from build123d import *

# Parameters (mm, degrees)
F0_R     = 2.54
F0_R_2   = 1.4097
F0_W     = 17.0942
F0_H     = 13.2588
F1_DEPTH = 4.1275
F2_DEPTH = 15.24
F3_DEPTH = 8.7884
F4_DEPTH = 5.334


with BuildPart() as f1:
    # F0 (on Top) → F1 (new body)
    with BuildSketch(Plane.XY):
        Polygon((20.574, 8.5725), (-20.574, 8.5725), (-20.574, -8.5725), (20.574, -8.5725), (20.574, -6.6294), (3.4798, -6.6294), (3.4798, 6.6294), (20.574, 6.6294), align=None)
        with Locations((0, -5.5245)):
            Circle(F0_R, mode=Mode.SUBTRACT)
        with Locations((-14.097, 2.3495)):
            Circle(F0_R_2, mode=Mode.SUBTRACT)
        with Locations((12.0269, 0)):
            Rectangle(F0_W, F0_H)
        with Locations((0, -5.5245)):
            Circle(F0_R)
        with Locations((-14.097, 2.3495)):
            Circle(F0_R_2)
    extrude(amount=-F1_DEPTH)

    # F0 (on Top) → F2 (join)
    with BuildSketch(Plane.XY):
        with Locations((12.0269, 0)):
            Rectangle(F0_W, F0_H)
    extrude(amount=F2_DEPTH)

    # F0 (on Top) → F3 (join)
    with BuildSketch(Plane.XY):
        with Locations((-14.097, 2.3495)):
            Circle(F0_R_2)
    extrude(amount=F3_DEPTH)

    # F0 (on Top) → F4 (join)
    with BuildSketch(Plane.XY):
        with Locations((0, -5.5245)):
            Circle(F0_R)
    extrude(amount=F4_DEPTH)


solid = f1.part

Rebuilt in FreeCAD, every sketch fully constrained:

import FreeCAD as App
import Part
import Sketcher
Q = App.Units.Quantity

doc = App.newDocument("Part")
body = doc.addObject("PartDesign::Body", "Body")

sketch1 = body.newObject("Sketcher::SketchObject", "Sketch")
sketch1.AttachmentSupport = (doc.getObject("XY_Plane"), [""])
sketch1.MapMode = "FlatFace"
sketch1.addGeometry([
    Part.LineSegment(App.Vector(21, 9, 0), App.Vector(-21, 9, 0)),
    Part.LineSegment(App.Vector(-21, 9, 0), App.Vector(-21, -9, 0)),
    Part.LineSegment(App.Vector(-21, -9, 0), App.Vector(21, -9, 0)),
    Part.LineSegment(App.Vector(21, -9, 0), App.Vector(21, 9, 0)),
], False)
sketch1.addConstraint([
    Sketcher.Constraint("Coincident", 0, 2, 1, 1),
    Sketcher.Constraint("Coincident", 1, 2, 2, 1),
    Sketcher.Constraint("Coincident", 2, 2, 3, 1),
    Sketcher.Constraint("Coincident", 3, 2, 0, 1),
    Sketcher.Constraint("Horizontal", 0),
    Sketcher.Constraint("Vertical", 1),
    Sketcher.Constraint("Horizontal", 2),
    Sketcher.Constraint("Vertical", 3),
    Sketcher.Constraint("Symmetric", 0, 2, 2, 2, -1, 1),
    Sketcher.Constraint("DistanceX", 0, 2, 0, 1, Q("1.62 in")),
    Sketcher.Constraint("DistanceY", 1, 2, 1, 1, Q("0.675 in")),
])
pad1 = body.newObject("PartDesign::Pad", "Pad")
pad1.Profile = sketch1
pad1.Length = Q("0.1625 in")
pad1.Reversed = True

sketch2 = body.newObject("Sketcher::SketchObject", "Sketch001")
sketch2.AttachmentSupport = (doc.getObject("XY_Plane"), [""])
sketch2.MapMode = "FlatFace"
sketch2.addGeometry([
    Part.LineSegment(App.Vector(3, 7, 0), App.Vector(3, -7, 0)),
    Part.LineSegment(App.Vector(3, -7, 0), App.Vector(21, -7, 0)),
    Part.LineSegment(App.Vector(21, -7, 0), App.Vector(21, 7, 0)),
    Part.LineSegment(App.Vector(21, 7, 0), App.Vector(3, 7, 0)),
], False)
sketch2.addConstraint([
    Sketcher.Constraint("Coincident", 0, 2, 1, 1),
    Sketcher.Constraint("Coincident", 1, 2, 2, 1),
    Sketcher.Constraint("Coincident", 2, 2, 3, 1),
    Sketcher.Constraint("Coincident", 3, 2, 0, 1),
    Sketcher.Constraint("Vertical", 0),
    Sketcher.Constraint("Horizontal", 1),
    Sketcher.Constraint("Vertical", 2),
    Sketcher.Constraint("Horizontal", 3),
    Sketcher.Constraint("DistanceX", 1, 1, 1, 2, Q("0.673 in")),
    Sketcher.Constraint("DistanceY", 0, 2, 0, 1, Q("0.522 in")),
    Sketcher.Constraint("DistanceX", -1, 1, 1, 2, Q("0.81 in")),
    Sketcher.Constraint("DistanceY", 0, 2, -1, 1, Q("0.261 in")),
])
pad2 = body.newObject("PartDesign::Pad", "Pad001")
pad2.Profile = sketch2
pad2.Length = Q("0.6 in")

sketch3 = body.newObject("Sketcher::SketchObject", "Sketch002")
sketch3.AttachmentSupport = (doc.getObject("XY_Plane"), [""])
sketch3.MapMode = "FlatFace"
sketch3.addGeometry(Part.Circle(App.Vector(-14.1, 2.3, 0), App.Vector(0, 0, 1), 1.4), False)
sketch3.addConstraint([
    Sketcher.Constraint("Diameter", 0, Q("0.111 in")),
    Sketcher.Constraint("DistanceX", 0, 3, -1, 1, Q("0.555 in")),
    Sketcher.Constraint("DistanceY", -1, 1, 0, 3, Q("0.0925 in")),
])
pad3 = body.newObject("PartDesign::Pad", "Pad002")
pad3.Profile = sketch3
pad3.Length = Q("0.346 in")

sketch4 = body.newObject("Sketcher::SketchObject", "Sketch003")
sketch4.AttachmentSupport = (doc.getObject("XY_Plane"), [""])
sketch4.MapMode = "FlatFace"
sketch4.addGeometry(Part.Circle(App.Vector(0, -5.5, 0), App.Vector(0, 0, 1), 2.5), False)
sketch4.addConstraint([
    Sketcher.Constraint("PointOnObject", 0, 3, -2),
    Sketcher.Constraint("Diameter", 0, Q("0.2 in")),
    Sketcher.Constraint("DistanceY", 0, 3, -1, 1, Q("0.2175 in")),
])
pad4 = body.newObject("PartDesign::Pad", "Pad003")
pad4.Profile = sketch4
pad4.Length = Q("0.21 in")

doc.recompute()
